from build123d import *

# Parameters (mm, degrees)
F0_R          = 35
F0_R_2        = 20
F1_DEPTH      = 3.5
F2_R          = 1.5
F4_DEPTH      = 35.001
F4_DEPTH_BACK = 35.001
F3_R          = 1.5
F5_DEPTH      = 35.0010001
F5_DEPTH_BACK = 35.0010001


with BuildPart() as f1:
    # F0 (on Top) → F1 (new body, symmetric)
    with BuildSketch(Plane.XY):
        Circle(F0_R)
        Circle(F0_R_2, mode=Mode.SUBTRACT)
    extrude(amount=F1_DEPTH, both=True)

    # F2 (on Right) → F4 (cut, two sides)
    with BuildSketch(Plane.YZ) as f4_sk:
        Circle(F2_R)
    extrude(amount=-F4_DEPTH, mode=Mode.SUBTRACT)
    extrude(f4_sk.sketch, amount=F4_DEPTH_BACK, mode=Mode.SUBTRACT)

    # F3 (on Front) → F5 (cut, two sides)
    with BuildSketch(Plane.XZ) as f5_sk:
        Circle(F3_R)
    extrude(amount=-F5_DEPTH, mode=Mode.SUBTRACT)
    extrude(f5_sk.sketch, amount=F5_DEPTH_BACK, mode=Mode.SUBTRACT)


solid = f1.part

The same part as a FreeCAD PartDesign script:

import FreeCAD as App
import Part
import Sketcher

V = App.Vector
Q = App.Units.Quantity

doc = App.newDocument("Part")
body = doc.addObject("PartDesign::Body", "Body")

sketch1 = body.newObject("Sketcher::SketchObject", "Sketch")
sketch1.AttachmentSupport = (doc.getObject("XY_Plane"), [""])
sketch1.MapMode = "FlatFace"
sketch1.addGeometry(Part.Circle(V(0, 0, 0), V(0, 0, 1), 35), False)
sketch1.addGeometry(Part.Circle(V(0, 0, 0), V(0, 0, 1), 20), False)
sketch1.addConstraint(Sketcher.Constraint("Coincident", 0, 3, -1, 1))
sketch1.addConstraint(Sketcher.Constraint("Coincident", 1, 3, -1, 1))
sketch1.addConstraint(Sketcher.Constraint("Diameter", 0, Q("70 mm")))
sketch1.addConstraint(Sketcher.Constraint("Diameter", 1, Q("40 mm")))
pad1 = body.newObject("PartDesign::Pad", "Pad")
pad1.Profile = sketch1
pad1.Length = 7
pad1.Midplane = True

sketch2 = body.newObject("Sketcher::SketchObject", "Sketch001")
sketch2.AttachmentSupport = (doc.getObject("YZ_Plane"), [""])
sketch2.MapMode = "FlatFace"
sketch2.addGeometry(Part.Circle(V(0, 0, 0), V(0, 0, 1), 1.5), False)
sketch2.addConstraint(Sketcher.Constraint("Coincident", 0, 3, -1, 1))
sketch2.addConstraint(Sketcher.Constraint("Diameter", 0, Q("3 mm")))
pocket1 = body.newObject("PartDesign::Pocket", "Pocket")
pocket1.Profile = sketch2
pocket1.Type = "ThroughAll"
pocket1.Midplane = True

sketch3 = body.newObject("Sketcher::SketchObject", "Sketch002")
sketch3.AttachmentSupport = (doc.getObject("XZ_Plane"), [""])
sketch3.MapMode = "FlatFace"
sketch3.addGeometry(Part.Circle(V(0, 0, 0), V(0, 0, 1), 1.5), False)
sketch3.addConstraint(Sketcher.Constraint("Coincident", 0, 3, -1, 1))
sketch3.addConstraint(Sketcher.Constraint("Diameter", 0, Q("3 mm")))
pocket2 = body.newObject("PartDesign::Pocket", "Pocket001")
pocket2.Profile = sketch3
pocket2.Type = "ThroughAll"
pocket2.Midplane = True

doc.recompute()
